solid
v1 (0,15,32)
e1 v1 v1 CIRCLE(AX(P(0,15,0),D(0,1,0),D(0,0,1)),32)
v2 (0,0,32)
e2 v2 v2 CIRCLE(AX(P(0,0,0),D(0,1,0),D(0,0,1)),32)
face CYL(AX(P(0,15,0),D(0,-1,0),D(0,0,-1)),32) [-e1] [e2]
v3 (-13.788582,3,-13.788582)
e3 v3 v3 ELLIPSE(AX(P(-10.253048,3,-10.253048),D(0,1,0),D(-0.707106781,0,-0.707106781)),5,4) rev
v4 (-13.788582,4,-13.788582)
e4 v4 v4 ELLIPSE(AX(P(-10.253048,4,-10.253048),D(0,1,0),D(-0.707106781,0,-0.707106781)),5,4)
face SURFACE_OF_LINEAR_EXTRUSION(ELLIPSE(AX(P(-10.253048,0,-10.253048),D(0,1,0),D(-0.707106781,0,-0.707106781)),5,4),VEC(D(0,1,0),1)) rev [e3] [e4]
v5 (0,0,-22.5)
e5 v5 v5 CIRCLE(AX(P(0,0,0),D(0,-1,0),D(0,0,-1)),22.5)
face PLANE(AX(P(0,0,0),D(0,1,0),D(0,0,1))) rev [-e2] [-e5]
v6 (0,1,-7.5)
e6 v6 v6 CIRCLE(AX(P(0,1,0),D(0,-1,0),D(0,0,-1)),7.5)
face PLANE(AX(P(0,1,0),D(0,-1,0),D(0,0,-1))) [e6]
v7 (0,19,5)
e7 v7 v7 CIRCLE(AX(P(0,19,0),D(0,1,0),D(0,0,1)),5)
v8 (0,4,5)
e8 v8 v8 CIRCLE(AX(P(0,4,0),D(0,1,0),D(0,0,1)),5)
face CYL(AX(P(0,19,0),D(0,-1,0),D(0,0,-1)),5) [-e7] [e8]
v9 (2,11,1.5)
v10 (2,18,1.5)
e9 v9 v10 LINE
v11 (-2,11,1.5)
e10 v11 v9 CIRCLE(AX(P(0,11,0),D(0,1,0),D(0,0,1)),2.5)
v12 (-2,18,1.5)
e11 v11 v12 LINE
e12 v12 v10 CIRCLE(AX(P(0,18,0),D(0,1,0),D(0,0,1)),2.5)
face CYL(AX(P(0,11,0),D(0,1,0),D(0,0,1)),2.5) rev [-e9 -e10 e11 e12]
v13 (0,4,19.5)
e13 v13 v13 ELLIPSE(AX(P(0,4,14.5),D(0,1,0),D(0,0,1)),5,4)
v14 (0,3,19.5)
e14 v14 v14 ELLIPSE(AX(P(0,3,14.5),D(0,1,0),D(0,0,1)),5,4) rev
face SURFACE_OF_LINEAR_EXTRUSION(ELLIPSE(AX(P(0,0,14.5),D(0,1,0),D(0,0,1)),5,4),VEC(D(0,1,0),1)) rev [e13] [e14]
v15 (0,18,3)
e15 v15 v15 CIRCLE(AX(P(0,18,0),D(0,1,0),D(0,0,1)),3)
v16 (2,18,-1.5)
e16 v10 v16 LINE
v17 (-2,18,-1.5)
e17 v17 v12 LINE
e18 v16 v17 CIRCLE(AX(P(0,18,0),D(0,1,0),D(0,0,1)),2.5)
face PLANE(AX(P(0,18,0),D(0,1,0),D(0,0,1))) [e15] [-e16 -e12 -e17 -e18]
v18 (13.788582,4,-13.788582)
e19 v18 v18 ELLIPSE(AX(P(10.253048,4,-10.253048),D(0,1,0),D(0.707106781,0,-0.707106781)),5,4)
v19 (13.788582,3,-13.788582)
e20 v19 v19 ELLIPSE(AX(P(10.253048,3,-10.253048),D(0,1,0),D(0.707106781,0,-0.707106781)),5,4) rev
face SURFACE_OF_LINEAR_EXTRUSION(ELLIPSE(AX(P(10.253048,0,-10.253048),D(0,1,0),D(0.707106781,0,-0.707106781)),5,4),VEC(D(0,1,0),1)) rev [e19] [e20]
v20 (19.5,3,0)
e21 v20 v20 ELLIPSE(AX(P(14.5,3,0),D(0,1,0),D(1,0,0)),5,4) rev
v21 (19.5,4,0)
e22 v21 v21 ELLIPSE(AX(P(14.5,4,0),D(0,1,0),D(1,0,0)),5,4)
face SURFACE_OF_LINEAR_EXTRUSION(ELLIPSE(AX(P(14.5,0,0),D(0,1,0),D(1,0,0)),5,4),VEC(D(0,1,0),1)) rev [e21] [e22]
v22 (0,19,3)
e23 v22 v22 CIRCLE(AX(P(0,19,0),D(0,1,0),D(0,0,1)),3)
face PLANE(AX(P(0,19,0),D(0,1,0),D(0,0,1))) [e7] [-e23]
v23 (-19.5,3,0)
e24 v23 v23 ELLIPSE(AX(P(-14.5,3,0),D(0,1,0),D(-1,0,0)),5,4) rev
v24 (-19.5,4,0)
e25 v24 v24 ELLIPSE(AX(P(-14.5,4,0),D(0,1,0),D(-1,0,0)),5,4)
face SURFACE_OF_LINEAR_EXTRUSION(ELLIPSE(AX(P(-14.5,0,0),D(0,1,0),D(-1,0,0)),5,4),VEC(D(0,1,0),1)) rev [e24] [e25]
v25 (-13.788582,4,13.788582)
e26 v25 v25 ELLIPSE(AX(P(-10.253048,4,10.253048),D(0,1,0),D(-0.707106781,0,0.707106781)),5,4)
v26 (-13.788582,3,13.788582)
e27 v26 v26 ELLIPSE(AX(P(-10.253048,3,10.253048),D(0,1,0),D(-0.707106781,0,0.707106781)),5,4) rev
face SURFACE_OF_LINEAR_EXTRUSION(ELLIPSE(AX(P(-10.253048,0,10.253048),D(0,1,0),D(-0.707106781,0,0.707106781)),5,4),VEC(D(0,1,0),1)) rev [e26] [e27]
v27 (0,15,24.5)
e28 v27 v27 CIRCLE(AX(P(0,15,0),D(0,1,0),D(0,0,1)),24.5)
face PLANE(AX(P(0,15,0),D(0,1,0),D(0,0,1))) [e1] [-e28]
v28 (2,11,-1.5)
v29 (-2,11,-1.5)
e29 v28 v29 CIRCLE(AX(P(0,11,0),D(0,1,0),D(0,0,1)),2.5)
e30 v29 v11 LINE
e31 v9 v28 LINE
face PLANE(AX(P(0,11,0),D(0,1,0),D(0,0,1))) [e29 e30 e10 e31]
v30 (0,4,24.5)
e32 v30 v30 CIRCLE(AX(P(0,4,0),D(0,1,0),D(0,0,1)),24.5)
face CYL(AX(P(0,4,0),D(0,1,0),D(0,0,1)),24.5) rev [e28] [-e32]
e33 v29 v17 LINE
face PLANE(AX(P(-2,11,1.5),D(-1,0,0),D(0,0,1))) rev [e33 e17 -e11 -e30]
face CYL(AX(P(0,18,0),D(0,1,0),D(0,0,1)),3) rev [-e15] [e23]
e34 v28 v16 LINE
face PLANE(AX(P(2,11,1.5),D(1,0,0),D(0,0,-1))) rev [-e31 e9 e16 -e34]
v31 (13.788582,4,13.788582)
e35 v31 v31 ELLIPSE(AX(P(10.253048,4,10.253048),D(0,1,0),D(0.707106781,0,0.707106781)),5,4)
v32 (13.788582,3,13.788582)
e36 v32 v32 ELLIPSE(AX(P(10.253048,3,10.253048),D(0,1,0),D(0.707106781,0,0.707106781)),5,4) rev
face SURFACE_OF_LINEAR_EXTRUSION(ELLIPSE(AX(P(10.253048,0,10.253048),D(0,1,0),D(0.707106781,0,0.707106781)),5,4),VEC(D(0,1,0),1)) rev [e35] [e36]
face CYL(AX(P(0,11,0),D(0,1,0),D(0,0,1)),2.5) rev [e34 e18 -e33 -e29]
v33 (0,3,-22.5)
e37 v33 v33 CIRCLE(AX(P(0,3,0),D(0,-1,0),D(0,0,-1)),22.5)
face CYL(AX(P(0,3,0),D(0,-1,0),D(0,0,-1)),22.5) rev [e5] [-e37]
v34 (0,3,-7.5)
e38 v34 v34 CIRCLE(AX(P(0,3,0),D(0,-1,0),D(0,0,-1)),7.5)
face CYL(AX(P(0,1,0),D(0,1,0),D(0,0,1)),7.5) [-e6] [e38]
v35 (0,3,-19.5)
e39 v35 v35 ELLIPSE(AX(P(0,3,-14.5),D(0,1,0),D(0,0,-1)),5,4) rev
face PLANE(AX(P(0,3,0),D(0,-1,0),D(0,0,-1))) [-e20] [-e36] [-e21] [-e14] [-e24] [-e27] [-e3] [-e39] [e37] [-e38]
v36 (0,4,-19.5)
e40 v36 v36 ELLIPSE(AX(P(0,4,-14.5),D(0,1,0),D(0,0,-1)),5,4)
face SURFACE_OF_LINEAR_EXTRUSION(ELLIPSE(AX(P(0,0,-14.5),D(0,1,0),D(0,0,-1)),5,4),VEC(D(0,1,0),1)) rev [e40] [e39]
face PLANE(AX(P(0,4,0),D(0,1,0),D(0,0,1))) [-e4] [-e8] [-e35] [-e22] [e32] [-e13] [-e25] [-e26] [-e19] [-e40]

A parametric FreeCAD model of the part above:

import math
import FreeCAD as App
import Part
import Sketcher
from FreeCAD import Vector

doc = App.newDocument("Part")
params = doc.addObject("Spreadsheet::Sheet", "Params")
for row, (alias, value) in enumerate([
    ("sketch1_diameter", "64 mm"),
    ("pad1_length", "15 mm"),
    ("sketch2_diameter", "45 mm"),
    ("pocket1_length", "3 mm"),
    ("sketch3_diameter", "15 mm"),
    ("pad2_length", "2 mm"),
    ("sketch4_diameter", "49 mm"),
    ("pocket2_length", "11 mm"),
    ("sketch5_diameter", "10 mm"),
    ("pad3_length", "15 mm"),
    ("sketch7_diameter", "6 mm"),
    ("pocket4_length", "1 mm"),
    ("sketch8_radius", "2.5 mm"),
    ("sketch8_height", "3 mm"),
    ("pocket5_length", "7 mm"),
], start=1):
    params.set(f"A{row}", alias)
    params.set(f"B{row}", "=" + value)
    params.setAlias(f"B{row}", alias)

body = doc.addObject("PartDesign::Body", "Body")

# Sketch on XZ plane
sketch1 = body.newObject("Sketcher::SketchObject", "Sketch")
sketch1.AttachmentSupport = (doc.getObject("XZ_Plane"), [""])
sketch1.MapMode = "FlatFace"
sketch1.addGeometry(Part.Circle(Vector(0, 0, 0), Vector(0, 0, 1), 32), False)
sketch1.addConstraint(Sketcher.Constraint("Coincident", 0, 3, -1, 1))
sketch1.addConstraint(Sketcher.Constraint("Diameter", 0, 64.0))
sketch1.setExpression("Constraints[1]", "Params.sketch1_diameter")
pad1 = body.newObject("PartDesign::Pad", "Pad")
pad1.Profile = sketch1
pad1.setExpression("Length", "Params.pad1_length")
pad1.Reversed = True

# Sketch on XZ plane
sketch2 = body.newObject("Sketcher::SketchObject", "Sketch001")
sketch2.AttachmentSupport = (doc.getObject("XZ_Plane"), [""])
sketch2.MapMode = "FlatFace"
sketch2.addGeometry(Part.Circle(Vector(0, 0, 0), Vector(0, 0, 1), 22), False)
sketch2.addConstraint(Sketcher.Constraint("Coincident", 0, 3, -1, 1))
sketch2.addConstraint(Sketcher.Constraint("Diameter", 0, 45.0))
sketch2.setExpression("Constraints[1]", "Params.sketch2_diameter")
pocket1 = body.newObject("PartDesign::Pocket", "Pocket")
pocket1.Profile = sketch2
pocket1.setExpression("Length", "Params.pocket1_length")

# Sketch on XZ plane
sketch3 = body.newObject("Sketcher::SketchObject", "Sketch002")
sketch3.AttachmentSupport = (doc.getObject("XZ_Plane"), [""])
sketch3.MapMode = "FlatFace"
sketch3.AttachmentOffset = App.Placement(Vector(0, 0, -3), App.Rotation())
sketch3.addGeometry(Part.Circle(Vector(0, 0, 0), Vector(0, 0, 1), 8), False)
sketch3.addConstraint(Sketcher.Constraint("Coincident", 0, 3, -1, 1))
sketch3.addConstraint(Sketcher.Constraint("Diameter", 0, 15.0))
sketch3.setExpression("Constraints[1]", "Params.sketch3_diameter")
pad2 = body.newObject("PartDesign::Pad", "Pad001")
pad2.Profile = sketch3
pad2.setExpression("Length", "Params.pad2_length")

# Sketch on XZ plane
sketch4 = body.newObject("Sketcher::SketchObject", "Sketch003")
sketch4.AttachmentSupport = (doc.getObject("XZ_Plane"), [""])
sketch4.MapMode = "FlatFace"
sketch4.AttachmentOffset = App.Placement(Vector(0, 0, -15), App.Rotation())
sketch4.addGeometry(Part.Circle(Vector(0, 0, 0), Vector(0, 0, 1), 24), False)
sketch4.addConstraint(Sketcher.Constraint("Coincident", 0, 3, -1, 1))
sketch4.addConstraint(Sketcher.Constraint("Diameter", 0, 49.0))
sketch4.setExpression("Constraints[1]", "Params.sketch4_diameter")
pocket2 = body.newObject("PartDesign::Pocket", "Pocket001")
pocket2.Profile = sketch4
pocket2.setExpression("Length", "Params.pocket2_length")
pocket2.Reversed = True

# Sketch on XZ plane
sketch5 = body.newObject("Sketcher::SketchObject", "Sketch004")
sketch5.AttachmentSupport = (doc.getObject("XZ_Plane"), [""])
sketch5.MapMode = "FlatFace"
sketch5.AttachmentOffset = App.Placement(Vector(0, 0, -4), App.Rotation())
sketch5.addGeometry(Part.Circle(Vector(0, 0, 0), Vector(0, 0, 1), 5), False)
sketch5.addConstraint(Sketcher.Constraint("Coincident", 0, 3, -1, 1))
sketch5.addConstraint(Sketcher.Constraint("Diameter", 0, 10.0))
sketch5.setExpression("Constraints[1]", "Params.sketch5_diameter")
pad3 = body.newObject("PartDesign::Pad", "Pad002")
pad3.Profile = sketch5
pad3.setExpression("Length", "Params.pad3_length")
pad3.Reversed = True

# Sketch on XZ plane
sketch6 = body.newObject("Sketcher::SketchObject", "Sketch005")
sketch6.AttachmentSupport = (doc.getObject("XZ_Plane"), [""])
sketch6.MapMode = "FlatFace"
sketch6.AttachmentOffset = App.Placement(Vector(0, 0, -4), App.Rotation())
sketch6.addGeometry(Part.Ellipse(Vector(0, 19.5, 0), Vector(-4, 14.5, 0), Vector(0, 14.5, 0)), False)
sketch6.addGeometry(Part.Ellipse(Vector(-13.788582, 13.788582, 0), Vector(-13.081475, 7.424621, 0), Vector(-10.253048, 10.253048, 0)), False)
sketch6.addGeometry(Part.Ellipse(Vector(-19.5, 0, 0), Vector(-14.5, -4, 0), Vector(-14.5, 0, 0)), False)
sketch6.addGeometry(Part.Ellipse(Vector(-13.788582, -13.788582, 0), Vector(-7.424621, -13.081475, 0), Vector(-10.253048, -10.253048, 0)), False)
sketch6.addGeometry(Part.Ellipse(Vector(0, -19.5, 0), Vector(4, -14.5, 0), Vector(0, -14.5, 0)), False)
sketch6.addGeometry(Part.Ellipse(Vector(6.717514, -6.717514, 0), Vector(7.424621, -13.081475, 0), Vector(10.253048, -10.253048, 0)), False)
sketch6.addGeometry(Part.Ellipse(Vector(19.5, 0, 0), Vector(14.5, 4, 0), Vector(14.5, 0, 0)), False)
sketch6.addGeometry(Part.Ellipse(Vector(13.788582, 13.788582, 0), Vector(7.424621, 13.081475, 0), Vector(10.253048, 10.253048, 0)), False)
sketch6.addConstraint(Sketcher.Constraint("Block", 0))
sketch6.addConstraint(Sketcher.Constraint("Block", 1))
sketch6.addConstraint(Sketcher.Constraint("Block", 2))
sketch6.addConstraint(Sketcher.Constraint("Block", 3))
sketch6.addConstraint(Sketcher.Constraint("Block", 4))
sketch6.addConstraint(Sketcher.Constraint("Block", 5))
sketch6.addConstraint(Sketcher.Constraint("Block", 6))
sketch6.addConstraint(Sketcher.Constraint("Block", 7))
pocket3 = body.newObject("PartDesign::Pocket", "Pocket002")
pocket3.Profile = sketch6
pocket3.Type = "ThroughAll"
pocket3.Reversed = True

# Sketch on XZ plane
sketch7 = body.newObject("Sketcher::SketchObject", "Sketch006")
sketch7.AttachmentSupport = (doc.getObject("XZ_Plane"), [""])
sketch7.MapMode = "FlatFace"
sketch7.AttachmentOffset = App.Placement(Vector(0, 0, -19), App.Rotation())
sketch7.addGeometry(Part.Circle(Vector(0, 0, 0), Vector(0, 0, 1), 3), False)
sketch7.addConstraint(Sketcher.Constraint("Coincident", 0, 3, -1, 1))
sketch7.addConstraint(Sketcher.Constraint("Diameter", 0, 6.0))
sketch7.setExpression("Constraints[1]", "Params.sketch7_diameter")
pocket4 = body.newObject("PartDesign::Pocket", "Pocket003")
pocket4.Profile = sketch7
pocket4.setExpression("Length", "Params.pocket4_length")
pocket4.Reversed = True

# Sketch on XZ plane
sketch8 = body.newObject("Sketcher::SketchObject", "Sketch007")
sketch8.AttachmentSupport = (doc.getObject("XZ_Plane"), [""])
sketch8.MapMode = "FlatFace"
sketch8.AttachmentOffset = App.Placement(Vector(0, 0, -18), App.Rotation())
sketch8.addGeometry(Part.LineSegment(Vector(2, 1.5, 0), Vector(2, -1.5, 0)), False)
sketch8.addGeometry(Part.ArcOfCircle(Part.Circle(Vector(0, 0, 0), Vector(0, 0, 1), 2.5), math.radians(-143), math.radians(-37)), False)
sketch8.addGeometry(Part.LineSegment(Vector(-2, -1.5, 0), Vector(-2, 1.5, 0)), False)
sketch8.addGeometry(Part.ArcOfCircle(Part.Circle(Vector(0, 0, 0), Vector(0, 0, 1), 2.5), math.radians(37), math.radians(143)), False)
sketch8.addConstraint(Sketcher.Constraint("Coincident", 0, 2, 1, 2))
sketch8.addConstraint(Sketcher.Constraint("Coincident", 1, 1, 2, 1))
sketch8.addConstraint(Sketcher.Constraint("Coincident", 2, 2, 3, 2))
sketch8.addConstraint(Sketcher.Constraint("Coincident", 3, 1, 0, 1))
sketch8.addConstraint(Sketcher.Constraint("Vertical", 0))
sketch8.addConstraint(Sketcher.Constraint("Vertical", 2))
sketch8.addConstraint(Sketcher.Constraint("Coincident", 1, 3, -1, 1))
sketch8.addConstraint(Sketcher.Constraint("Coincident", 3, 3, -1, 1))
sketch8.addConstraint(Sketcher.Constraint("Equal", 1, 3))
sketch8.addConstraint(Sketcher.Constraint("Horizontal", 0, 2, 1, 1))
sketch8.addConstraint(Sketcher.Constraint("Radius", 1, 2.5))
sketch8.addConstraint(Sketcher.Constraint("DistanceY", 0, 2, 0, 1, 3.0))
sketch8.setExpression("Constraints[10]", "Params.sketch8_radius")
sketch8.setExpression("Constraints[11]", "Params.sketch8_height")
pocket5 = body.newObject("PartDesign::Pocket", "Pocket004")
pocket5.Profile = sketch8
pocket5.setExpression("Length", "Params.pocket5_length")
pocket5.Reversed = True

doc.recompute()
